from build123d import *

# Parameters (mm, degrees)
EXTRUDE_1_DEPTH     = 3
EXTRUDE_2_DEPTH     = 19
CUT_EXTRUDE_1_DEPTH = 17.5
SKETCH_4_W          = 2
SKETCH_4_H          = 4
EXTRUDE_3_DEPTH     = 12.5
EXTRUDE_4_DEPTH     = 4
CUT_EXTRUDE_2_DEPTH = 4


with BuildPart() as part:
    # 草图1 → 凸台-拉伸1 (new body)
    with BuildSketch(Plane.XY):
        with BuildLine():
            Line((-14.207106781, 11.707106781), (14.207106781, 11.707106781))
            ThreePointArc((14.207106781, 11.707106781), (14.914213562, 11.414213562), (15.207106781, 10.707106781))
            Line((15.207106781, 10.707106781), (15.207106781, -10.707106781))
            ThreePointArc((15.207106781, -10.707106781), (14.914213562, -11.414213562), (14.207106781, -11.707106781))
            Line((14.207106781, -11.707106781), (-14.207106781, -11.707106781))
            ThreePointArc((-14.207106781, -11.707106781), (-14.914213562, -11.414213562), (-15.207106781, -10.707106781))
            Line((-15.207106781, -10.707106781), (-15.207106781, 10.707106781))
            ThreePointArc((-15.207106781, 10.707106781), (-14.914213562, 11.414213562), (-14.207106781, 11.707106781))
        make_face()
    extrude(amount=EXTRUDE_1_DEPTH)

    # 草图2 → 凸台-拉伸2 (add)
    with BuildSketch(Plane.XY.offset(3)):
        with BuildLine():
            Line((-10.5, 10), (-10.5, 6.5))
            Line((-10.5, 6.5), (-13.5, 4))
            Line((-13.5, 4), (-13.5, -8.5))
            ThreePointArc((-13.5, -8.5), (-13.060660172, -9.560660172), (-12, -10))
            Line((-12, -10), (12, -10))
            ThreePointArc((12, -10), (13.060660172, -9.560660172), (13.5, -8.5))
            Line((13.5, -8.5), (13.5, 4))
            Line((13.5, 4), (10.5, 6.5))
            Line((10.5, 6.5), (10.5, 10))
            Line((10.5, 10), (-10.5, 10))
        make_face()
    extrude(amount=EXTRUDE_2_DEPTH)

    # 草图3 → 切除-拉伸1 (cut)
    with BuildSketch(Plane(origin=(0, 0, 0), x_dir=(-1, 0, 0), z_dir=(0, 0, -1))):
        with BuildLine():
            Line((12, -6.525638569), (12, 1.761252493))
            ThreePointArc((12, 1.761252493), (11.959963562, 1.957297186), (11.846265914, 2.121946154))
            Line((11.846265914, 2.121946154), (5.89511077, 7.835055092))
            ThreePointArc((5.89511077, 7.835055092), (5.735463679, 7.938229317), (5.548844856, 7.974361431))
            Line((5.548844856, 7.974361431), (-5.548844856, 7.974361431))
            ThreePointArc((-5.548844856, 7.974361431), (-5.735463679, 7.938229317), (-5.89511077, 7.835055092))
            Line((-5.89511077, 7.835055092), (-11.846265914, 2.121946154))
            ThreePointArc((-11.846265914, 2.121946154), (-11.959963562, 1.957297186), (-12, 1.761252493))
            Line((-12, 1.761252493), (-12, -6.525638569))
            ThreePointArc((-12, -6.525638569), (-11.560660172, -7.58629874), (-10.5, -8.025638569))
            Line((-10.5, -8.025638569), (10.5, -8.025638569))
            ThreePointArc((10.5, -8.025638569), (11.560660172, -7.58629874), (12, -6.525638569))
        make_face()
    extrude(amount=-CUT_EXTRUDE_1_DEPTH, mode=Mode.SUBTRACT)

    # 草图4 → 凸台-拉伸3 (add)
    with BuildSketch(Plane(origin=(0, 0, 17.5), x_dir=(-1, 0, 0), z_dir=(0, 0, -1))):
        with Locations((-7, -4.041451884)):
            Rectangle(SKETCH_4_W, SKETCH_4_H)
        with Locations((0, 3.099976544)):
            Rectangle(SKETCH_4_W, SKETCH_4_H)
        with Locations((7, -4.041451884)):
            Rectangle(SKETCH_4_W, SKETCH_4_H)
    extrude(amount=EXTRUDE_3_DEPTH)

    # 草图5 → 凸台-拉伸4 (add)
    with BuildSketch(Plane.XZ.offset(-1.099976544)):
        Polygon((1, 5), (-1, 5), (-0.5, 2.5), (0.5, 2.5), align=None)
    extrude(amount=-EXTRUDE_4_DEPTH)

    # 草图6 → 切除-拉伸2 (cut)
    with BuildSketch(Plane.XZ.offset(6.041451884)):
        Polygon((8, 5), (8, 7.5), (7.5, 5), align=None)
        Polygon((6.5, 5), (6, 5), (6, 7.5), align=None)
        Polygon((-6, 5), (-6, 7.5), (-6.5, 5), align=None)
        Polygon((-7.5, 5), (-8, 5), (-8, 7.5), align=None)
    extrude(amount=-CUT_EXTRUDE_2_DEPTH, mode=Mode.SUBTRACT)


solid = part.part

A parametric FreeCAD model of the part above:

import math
import FreeCAD as App
import Part
import Sketcher
Q = App.Units.Quantity

doc = App.newDocument("Part")
params = doc.addObject("Spreadsheet::Sheet", "Params")
for row, (alias, value) in enumerate([
    ("sketch1_radius", "1 mm"),
    ("pad1_length", "3 mm"),
    ("sketch2_radius", "1.5 mm"),
    ("sketch2_width", "24 mm"),
    ("sketch2_width2", "21 mm"),
    ("sketch2_height", "3.5 mm"),
    ("sketch2_height2", "12.5 mm"),
    ("pad2_length", "19 mm"),
    ("sketch3_radius", "0.5 mm"),
    ("sketch3_radius2", "1.5 mm"),
    ("sketch3_width", "21 mm"),
    ("pocket1_length", "17.5 mm"),
    ("sketch4_width", "2 mm"),
    ("sketch4_height", "4 mm"),
    ("pad3_length", "12.5 mm"),
    ("sketch5_width", "2 mm"),
    ("sketch5_width2", "1 mm"),
    ("pad4_length", "4 mm"),
    ("sketch6_width", "0.5 mm"),
    ("sketch6_height", "2.5 mm"),
    ("pocket2_length", "4 mm"),
], start=1):
    params.set(f"A{row}", alias)
    params.set(f"B{row}", "=" + value)
    params.setAlias(f"B{row}", alias)

body = doc.addObject("PartDesign::Body", "Body")

# Sketch on XY plane
sketch1 = doc.addObject("Sketcher::SketchObject", "Sketch")
body.addObject(sketch1)
sketch1.AttachmentSupport = (doc.XY_Plane, [""])
sketch1.MapMode = "FlatFace"
sketch1.addGeometry(Part.LineSegment(App.Vector(14.2, 11.7, 0), App.Vector(-14.2, 11.7, 0)), False)
sketch1.addGeometry(Part.ArcOfCircle(Part.Circle(App.Vector(-14.2, 10.7, 0), App.Vector(0, 0, 1), 1), math.radians(90), math.radians(180)), False)
sketch1.addGeometry(Part.LineSegment(App.Vector(-15.2, 10.7, 0), App.Vector(-15.2, -10.7, 0)), False)
sketch1.addGeometry(Part.ArcOfCircle(Part.Circle(App.Vector(-14.2, -10.7, 0), App.Vector(0, 0, 1), 1), math.radians(-180), math.radians(-90)), False)
sketch1.addGeometry(Part.LineSegment(App.Vector(-14.2, -11.7, 0), App.Vector(14.2, -11.7, 0)), False)
sketch1.addGeometry(Part.ArcOfCircle(Part.Circle(App.Vector(14.2, -10.7, 0), App.Vector(0, 0, 1), 1), math.radians(-90), math.radians(0)), False)
sketch1.addGeometry(Part.LineSegment(App.Vector(15.2, -10.7, 0), App.Vector(15.2, 10.7, 0)), False)
sketch1.addGeometry(Part.ArcOfCircle(Part.Circle(App.Vector(14.2, 10.7, 0), App.Vector(0, 0, 1), 1), math.radians(0), math.radians(90)), False)
sketch1.addConstraint(Sketcher.Constraint("Tangent", 0, 2, 1, 1))
sketch1.addConstraint(Sketcher.Constraint("Tangent", 1, 2, 2, 1))
sketch1.addConstraint(Sketcher.Constraint("Tangent", 2, 2, 3, 1))
sketch1.addConstraint(Sketcher.Constraint("Tangent", 3, 2, 4, 1))
sketch1.addConstraint(Sketcher.Constraint("Tangent", 4, 2, 5, 1))
sketch1.addConstraint(Sketcher.Constraint("Tangent", 5, 2, 6, 1))
sketch1.addConstraint(Sketcher.Constraint("Tangent", 6, 2, 7, 1))
sketch1.addConstraint(Sketcher.Constraint("Tangent", 7, 2, 0, 1))
sketch1.addConstraint(Sketcher.Constraint("Horizontal", 0))
sketch1.addConstraint(Sketcher.Constraint("Vertical", 2))
sketch1.addConstraint(Sketcher.Constraint("Horizontal", 4))
sketch1.addConstraint(Sketcher.Constraint("Vertical", 6))
sketch1.addConstraint(Sketcher.Constraint("Equal", 1, 3))
sketch1.addConstraint(Sketcher.Constraint("Equal", 3, 5))
sketch1.addConstraint(Sketcher.Constraint("Equal", 5, 7))
sketch1.addConstraint(Sketcher.Constraint("Symmetric", 1, 3, 5, 3, -1, 1))
sketch1.addConstraint(Sketcher.Constraint("Radius", 1, Q("1 mm")))
sketch1.addConstraint(Sketcher.Constraint("DistanceX", 0, 2, 0, 1, Q("28.414214 mm")))
sketch1.addConstraint(Sketcher.Constraint("DistanceY", 2, 2, 2, 1, Q("21.414214 mm")))
sketch1.setExpression("Constraints[16]", "Params.sketch1_radius")
pad1 = doc.addObject("PartDesign::Pad", "Pad")
body.addObject(pad1)
pad1.Profile = sketch1
pad1.setExpression("Length", "Params.pad1_length")

# Sketch on XY plane
sketch2 = doc.addObject("Sketcher::SketchObject", "Sketch001")
body.addObject(sketch2)
sketch2.AttachmentSupport = (doc.XY_Plane, [""])
sketch2.MapMode = "FlatFace"
sketch2.AttachmentOffset = App.Placement(App.Vector(0, 0, 3), App.Rotation())
sketch2.addGeometry(Part.LineSegment(App.Vector(-10.5, 10, 0), App.Vector(-10.5, 6.5, 0)), False)
sketch2.addGeometry(Part.LineSegment(App.Vector(-10.5, 6.5, 0), App.Vector(-13.5, 4, 0)), False)
sketch2.addGeometry(Part.LineSegment(App.Vector(-13.5, 4, 0), App.Vector(-13.5, -8.5, 0)), False)
sketch2.addGeometry(Part.ArcOfCircle(Part.Circle(App.Vector(-12, -8.5, 0), App.Vector(0, 0, 1), 1.5), math.radians(180), math.radians(270)), False)
sketch2.addGeometry(Part.LineSegment(App.Vector(-12, -10, 0), App.Vector(12, -10, 0)), False)
sketch2.addGeometry(Part.ArcOfCircle(Part.Circle(App.Vector(12, -8.5, 0), App.Vector(0, 0, 1), 1.5), math.radians(-90), math.radians(0)), False)
sketch2.addGeometry(Part.LineSegment(App.Vector(13.5, -8.5, 0), App.Vector(13.5, 4, 0)), False)
sketch2.addGeometry(Part.LineSegment(App.Vector(13.5, 4, 0), App.Vector(10.5, 6.5, 0)), False)
sketch2.addGeometry(Part.LineSegment(App.Vector(10.5, 6.5, 0), App.Vector(10.5, 10, 0)), False)
sketch2.addGeometry(Part.LineSegment(App.Vector(10.5, 10, 0), App.Vector(-10.5, 10, 0)), False)
sketch2.addConstraint(Sketcher.Constraint("Coincident", 0, 2, 1, 1))
sketch2.addConstraint(Sketcher.Constraint("Coincident", 1, 2, 2, 1))
sketch2.addConstraint(Sketcher.Constraint("Tangent", 2, 2, 3, 1))
sketch2.addConstraint(Sketcher.Constraint("Tangent", 3, 2, 4, 1))
sketch2.addConstraint(Sketcher.Constraint("Tangent", 4, 2, 5, 1))
sketch2.addConstraint(Sketcher.Constraint("Tangent", 5, 2, 6, 1))
sketch2.addConstraint(Sketcher.Constraint("Coincident", 6, 2, 7, 1))
sketch2.addConstraint(Sketcher.Constraint("Coincident", 7, 2, 8, 1))
sketch2.addConstraint(Sketcher.Constraint("Coincident", 8, 2, 9, 1))
sketch2.addConstraint(Sketcher.Constraint("Coincident", 9, 2, 0, 1))
sketch2.addConstraint(Sketcher.Constraint("Vertical", 0))
sketch2.addConstraint(Sketcher.Constraint("Vertical", 2))
sketch2.addConstraint(Sketcher.Constraint("Horizontal", 4))
sketch2.addConstraint(Sketcher.Constraint("Vertical", 6))
sketch2.addConstraint(Sketcher.Constraint("Vertical", 8))
sketch2.addConstraint(Sketcher.Constraint("Horizontal", 9))
sketch2.addConstraint(Sketcher.Constraint("Equal", 3, 5))
sketch2.addConstraint(Sketcher.Constraint("Symmetric", 1, 2, 6, 2, -2))
sketch2.addConstraint(Sketcher.Constraint("Symmetric", 0, 2, 7, 2, -2))
sketch2.addConstraint(Sketcher.Constraint("Radius", 3, Q("1.5 mm")))
sketch2.addConstraint(Sketcher.Constraint("DistanceX", 4, 1, 4, 2, Q("24 mm")))
sketch2.addConstraint(Sketcher.Constraint("DistanceX", 9, 2, 9, 1, Q("21 mm")))
sketch2.addConstraint(Sketcher.Constraint("DistanceY", 0, 2, 0, 1, Q("3.5 mm")))
sketch2.addConstraint(Sketcher.Constraint("DistanceY", 2, 2, 2, 1, Q("12.5 mm")))
sketch2.addConstraint(Sketcher.Constraint("DistanceY", -1, 1, 1, 2, Q("4 mm")))
sketch2.addConstraint(Sketcher.Constraint("DistanceY", -1, 1, 8, 2, Q("10 mm")))
sketch2.setExpression("Constraints[19]", "Params.sketch2_radius")
sketch2.setExpression("Constraints[20]", "Params.sketch2_width")
sketch2.setExpression("Constraints[21]", "Params.sketch2_width2")
sketch2.setExpression("Constraints[22]", "Params.sketch2_height")
sketch2.setExpression("Constraints[23]", "Params.sketch2_height2")
pad2 = doc.addObject("PartDesign::Pad", "Pad001")
body.addObject(pad2)
pad2.Profile = sketch2
pad2.setExpression("Length", "Params.pad2_length")

# Sketch on XY plane
sketch3 = doc.addObject("Sketcher::SketchObject", "Sketch002")
body.addObject(sketch3)
sketch3.AttachmentSupport = (doc.XY_Plane, [""])
sketch3.MapMode = "FlatFace"
sketch3.addGeometry(Part.LineSegment(App.Vector(-12, -6.53, 0), App.Vector(-12, 1.76, 0)), False)
sketch3.addGeometry(Part.ArcOfCircle(Part.Circle(App.Vector(-11.5, 1.76, 0), App.Vector(0, 0, 1), 0.5), math.radians(134), math.radians(180)), False)
sketch3.addGeometry(Part.LineSegment(App.Vector(-11.85, 2.12, 0), App.Vector(-5.9, 7.84, 0)), False)
sketch3.addGeometry(Part.ArcOfCircle(Part.Circle(App.Vector(-5.55, 7.47, 0), App.Vector(0, 0, 1), 0.5), math.radians(90), math.radians(134)), False)
sketch3.addGeometry(Part.LineSegment(App.Vector(-5.55, 7.97, 0), App.Vector(5.55, 7.97, 0)), False)
sketch3.addGeometry(Part.ArcOfCircle(Part.Circle(App.Vector(5.55, 7.47, 0), App.Vector(0, 0, 1), 0.5), math.radians(46), math.radians(90)), False)
sketch3.addGeometry(Part.LineSegment(App.Vector(5.9, 7.84, 0), App.Vector(11.85, 2.12, 0)), False)
sketch3.addGeometry(Part.ArcOfCircle(Part.Circle(App.Vector(11.5, 1.76, 0), App.Vector(0, 0, 1), 0.5), math.radians(0), math.radians(46)), False)
sketch3.addGeometry(Part.LineSegment(App.Vector(12, 1.76, 0), App.Vector(12, -6.53, 0)), False)
sketch3.addGeometry(Part.ArcOfCircle(Part.Circle(App.Vector(10.5, -6.53, 0), App.Vector(0, 0, 1), 1.5), math.radians(-90), math.radians(0)), False)
sketch3.addGeometry(Part.LineSegment(App.Vector(10.5, -8.03, 0), App.Vector(-10.5, -8.03, 0)), False)
sketch3.addGeometry(Part.ArcOfCircle(Part.Circle(App.Vector(-10.5, -6.53, 0), App.Vector(0, 0, 1), 1.5), math.radians(-180), math.radians(-90)), False)
sketch3.addConstraint(Sketcher.Constraint("Tangent", 0, 2, 1, 2))
sketch3.addConstraint(Sketcher.Constraint("Tangent", 1, 1, 2, 1))
sketch3.addConstraint(Sketcher.Constraint("Tangent", 2, 2, 3, 2))
sketch3.addConstraint(Sketcher.Constraint("Tangent", 3, 1, 4, 1))
sketch3.addConstraint(Sketcher.Constraint("Tangent", 4, 2, 5, 2))
sketch3.addConstraint(Sketcher.Constraint("Tangent", 5, 1, 6, 1))
sketch3.addConstraint(Sketcher.Constraint("Tangent", 6, 2, 7, 2))
sketch3.addConstraint(Sketcher.Constraint("Tangent", 7, 1, 8, 1))
sketch3.addConstraint(Sketcher.Constraint("Tangent", 8, 2, 9, 2))
sketch3.addConstraint(Sketcher.Constraint("Tangent", 9, 1, 10, 1))
sketch3.addConstraint(Sketcher.Constraint("Tangent", 10, 2, 11, 2))
sketch3.addConstraint(Sketcher.Constraint("Tangent", 11, 1, 0, 1))
sketch3.addConstraint(Sketcher.Constraint("Vertical", 0))
sketch3.addConstraint(Sketcher.Constraint("Horizontal", 4))
sketch3.addConstraint(Sketcher.Constraint("Vertical", 8))
sketch3.addConstraint(Sketcher.Constraint("Horizontal", 10))
sketch3.addConstraint(Sketcher.Constraint("Equal", 1, 3))
sketch3.addConstraint(Sketcher.Constraint("Equal", 3, 5))
sketch3.addConstraint(Sketcher.Constraint("Equal", 5, 7))
sketch3.addConstraint(Sketcher.Constraint("Equal", 9, 11))
sketch3.addConstraint(Sketcher.Constraint("Symmetric", 1, 3, 7, 3, -2))
sketch3.addConstraint(Sketcher.Constraint("Horizontal", 2, 2, 5, 1))
sketch3.addConstraint(Sketcher.Constraint("Radius", 1, Q("0.5 mm")))
sketch3.addConstraint(Sketcher.Constraint("Radius", 9, Q("1.5 mm")))
sketch3.addConstraint(Sketcher.Constraint("DistanceX", 10, 2, 10, 1, Q("21 mm")))
sketch3.addConstraint(Sketcher.Constraint("DistanceY", 9, 3, 5, 3, Q("14 mm")))
sketch3.addConstraint(Sketcher.Constraint("DistanceX", 4, 1, 4, 2, Q("11.09769 mm")))
sketch3.addConstraint(Sketcher.Constraint("DistanceY", 0, 1, 0, 2, Q("8.286891 mm")))
sketch3.addConstraint(Sketcher.Constraint("DistanceY", -1, 1, 3, 3, Q("7.474361 mm")))
sketch3.setExpression("Constraints[22]", "Params.sketch3_radius")
sketch3.setExpression("Constraints[23]", "Params.sketch3_radius2")
sketch3.setExpression("Constraints[24]", "Params.sketch3_width")
pocket1 = doc.addObject("PartDesign::Pocket", "Pocket")
body.addObject(pocket1)
pocket1.Profile = sketch3
pocket1.setExpression("Length", "Params.pocket1_length")
pocket1.Reversed = True

# Sketch on XY plane
sketch4 = doc.addObject("Sketcher::SketchObject", "Sketch003")
body.addObject(sketch4)
sketch4.AttachmentSupport = (doc.XY_Plane, [""])
sketch4.MapMode = "FlatFace"
sketch4.AttachmentOffset = App.Placement(App.Vector(0, 0, 17.5), App.Rotation())
sketch4.addGeometry(Part.LineSegment(App.Vector(8, -2, 0), App.Vector(8, -6, 0)), False)
sketch4.addGeometry(Part.LineSegment(App.Vector(8, -6, 0), App.Vector(6, -6, 0)), False)
sketch4.addGeometry(Part.LineSegment(App.Vector(6, -6, 0), App.Vector(6, -2, 0)), False)
sketch4.addGeometry(Part.LineSegment(App.Vector(6, -2, 0), App.Vector(8, -2, 0)), False)
sketch4.addGeometry(Part.LineSegment(App.Vector(1, 5.1, 0), App.Vector(1, 1.1, 0)), False)
sketch4.addGeometry(Part.LineSegment(App.Vector(1, 1.1, 0), App.Vector(-1, 1.1, 0)), False)
sketch4.addGeometry(Part.LineSegment(App.Vector(-1, 1.1, 0), App.Vector(-1, 5.1, 0)), False)
sketch4.addGeometry(Part.LineSegment(App.Vector(-1, 5.1, 0), App.Vector(1, 5.1, 0)), False)
sketch4.addGeometry(Part.LineSegment(App.Vector(-6, -2, 0), App.Vector(-6, -6, 0)), False)
sketch4.addGeometry(Part.LineSegment(App.Vector(-6, -6, 0), App.Vector(-8, -6, 0)), False)
sketch4.addGeometry(Part.LineSegment(App.Vector(-8, -6, 0), App.Vector(-8, -2, 0)), False)
sketch4.addGeometry(Part.LineSegment(App.Vector(-8, -2, 0), App.Vector(-6, -2, 0)), False)
sketch4.addConstraint(Sketcher.Constraint("Coincident", 0, 2, 1, 1))
sketch4.addConstraint(Sketcher.Constraint("Coincident", 1, 2, 2, 1))
sketch4.addConstraint(Sketcher.Constraint("Coincident", 2, 2, 3, 1))
sketch4.addConstraint(Sketcher.Constraint("Coincident", 3, 2, 0, 1))
sketch4.addConstraint(Sketcher.Constraint("Coincident", 4, 2, 5, 1))
sketch4.addConstraint(Sketcher.Constraint("Coincident", 5, 2, 6, 1))
sketch4.addConstraint(Sketcher.Constraint("Coincident", 6, 2, 7, 1))
sketch4.addConstraint(Sketcher.Constraint("Coincident", 7, 2, 4, 1))
sketch4.addConstraint(Sketcher.Constraint("Coincident", 8, 2, 9, 1))
sketch4.addConstraint(Sketcher.Constraint("Coincident", 9, 2, 10, 1))
sketch4.addConstraint(Sketcher.Constraint("Coincident", 10, 2, 11, 1))
sketch4.addConstraint(Sketcher.Constraint("Coincident", 11, 2, 8, 1))
sketch4.addConstraint(Sketcher.Constraint("Vertical", 0))
sketch4.addConstraint(Sketcher.Constraint("Horizontal", 1))
sketch4.addConstraint(Sketcher.Constraint("Vertical", 2))
sketch4.addConstraint(Sketcher.Constraint("Horizontal", 3))
sketch4.addConstraint(Sketcher.Constraint("Vertical", 4))
sketch4.addConstraint(Sketcher.Constraint("Horizontal", 5))
sketch4.addConstraint(Sketcher.Constraint("Vertical", 6))
sketch4.addConstraint(Sketcher.Constraint("Horizontal", 7))
sketch4.addConstraint(Sketcher.Constraint("Vertical", 8))
sketch4.addConstraint(Sketcher.Constraint("Horizontal", 9))
sketch4.addConstraint(Sketcher.Constraint("Vertical", 10))
sketch4.addConstraint(Sketcher.Constraint("Horizontal", 11))
sketch4.addConstraint(Sketcher.Constraint("Symmetric", 1, 2, 8, 2, -2))
sketch4.addConstraint(Sketcher.Constraint("Symmetric", 3, 2, 10, 2, -2))
sketch4.addConstraint(Sketcher.Constraint("Equal", 3, 5))
sketch4.addConstraint(Sketcher.Constraint("Equal", 2, 4))
sketch4.addConstraint(Sketcher.Constraint("DistanceX", 1, 2, 1, 1, Q("2 mm")))
sketch4.addConstraint(Sketcher.Constraint("DistanceY", 0, 2, 0, 1, Q("4 mm")))
sketch4.addConstraint(Sketcher.Constraint("DistanceX", -1, 1, 0, 2, Q("8 mm")))
sketch4.addConstraint(Sketcher.Constraint("DistanceX", -1, 1, 4, 2, Q("1 mm")))
sketch4.addConstraint(Sketcher.Constraint("DistanceY", 0, 2, -1, 1, Q("6.041452 mm")))
sketch4.addConstraint(Sketcher.Constraint("DistanceY", 2, 2, 4, 2, Q("3.141428 mm")))
sketch4.setExpression("Constraints[28]", "Params.sketch4_width")
sketch4.setExpression("Constraints[29]", "Params.sketch4_height")
pad3 = doc.addObject("PartDesign::Pad", "Pad002")
body.addObject(pad3)
pad3.Profile = sketch4
pad3.setExpression("Length", "Params.pad3_length")
pad3.Reversed = True

# Sketch on XZ plane
sketch5 = doc.addObject("Sketcher::SketchObject", "Sketch004")
body.addObject(sketch5)
sketch5.AttachmentSupport = (doc.XZ_Plane, [""])
sketch5.MapMode = "FlatFace"
sketch5.AttachmentOffset = App.Placement(App.Vector(0, 0, -1.099977), App.Rotation())
sketch5.addGeometry(Part.LineSegment(App.Vector(1, 5, 0), App.Vector(-1, 5, 0)), False)
sketch5.addGeometry(Part.LineSegment(App.Vector(-1, 5, 0), App.Vector(-0.5, 2.5, 0)), False)
sketch5.addGeometry(Part.LineSegment(App.Vector(-0.5, 2.5, 0), App.Vector(0.5, 2.5, 0)), False)
sketch5.addGeometry(Part.LineSegment(App.Vector(0.5, 2.5, 0), App.Vector(1, 5, 0)), False)
sketch5.addConstraint(Sketcher.Constraint("Coincident", 0, 2, 1, 1))
sketch5.addConstraint(Sketcher.Constraint("Coincident", 1, 2, 2, 1))
sketch5.addConstraint(Sketcher.Constraint("Coincident", 2, 2, 3, 1))
sketch5.addConstraint(Sketcher.Constraint("Coincident", 3, 2, 0, 1))
sketch5.addConstraint(Sketcher.Constraint("Horizontal", 0))
sketch5.addConstraint(Sketcher.Constraint("Horizontal", 2))
sketch5.addConstraint(Sketcher.Constraint("Equal", 1, 3))
sketch5.addConstraint(Sketcher.Constraint("DistanceX", 0, 2, 0, 1, Q("2 mm")))
sketch5.addConstraint(Sketcher.Constraint("DistanceX", 2, 1, 2, 2, Q("1 mm")))
sketch5.addConstraint(Sketcher.Constraint("DistanceX", 0, 2, -1, 1, Q("1 mm")))
sketch5.addConstraint(Sketcher.Constraint("DistanceY", -1, 1, 0, 2, Q("5 mm")))
sketch5.addConstraint(Sketcher.Constraint("DistanceY", -1, 1, 1, 2, Q("2.5 mm")))
sketch5.setExpression("Constraints[7]", "Params.sketch5_width")
sketch5.setExpression("Constraints[8]", "Params.sketch5_width2")
pad4 = doc.addObject("PartDesign::Pad", "Pad003")
body.addObject(pad4)
pad4.Profile = sketch5
pad4.setExpression("Length", "Params.pad4_length")
pad4.Reversed = True

# Sketch on XZ plane
sketch6 = doc.addObject("Sketcher::SketchObject", "Sketch005")
body.addObject(sketch6)
sketch6.AttachmentSupport = (doc.XZ_Plane, [""])
sketch6.MapMode = "FlatFace"
sketch6.AttachmentOffset = App.Placement(App.Vector(0, 0, 6.041452), App.Rotation())
sketch6.addGeometry(Part.LineSegment(App.Vector(8, 5, 0), App.Vector(8, 7.5, 0)), False)
sketch6.addGeometry(Part.LineSegment(App.Vector(8, 7.5, 0), App.Vector(7.5, 5, 0)), False)
sketch6.addGeometry(Part.LineSegment(App.Vector(7.5, 5, 0), App.Vector(8, 5, 0)), False)
sketch6.addGeometry(Part.LineSegment(App.Vector(6, 5, 0), App.Vector(6.5, 5, 0)), False)
sketch6.addGeometry(Part.LineSegment(App.Vector(6.5, 5, 0), App.Vector(6, 7.5, 0)), False)
sketch6.addGeometry(Part.LineSegment(App.Vector(6, 7.5, 0), App.Vector(6, 5, 0)), False)
sketch6.addGeometry(Part.LineSegment(App.Vector(-6, 5, 0), App.Vector(-6, 7.5, 0)), False)
sketch6.addGeometry(Part.LineSegment(App.Vector(-6, 7.5, 0), App.Vector(-6.5, 5, 0)), False)
sketch6.addGeometry(Part.LineSegment(App.Vector(-6.5, 5, 0), App.Vector(-6, 5, 0)), False)
sketch6.addGeometry(Part.LineSegment(App.Vector(-8, 5, 0), App.Vector(-7.5, 5, 0)), False)
sketch6.addGeometry(Part.LineSegment(App.Vector(-7.5, 5, 0), App.Vector(-8, 7.5, 0)), False)
sketch6.addGeometry(Part.LineSegment(App.Vector(-8, 7.5, 0), App.Vector(-8, 5, 0)), False)
sketch6.addConstraint(Sketcher.Constraint("Coincident", 0, 2, 1, 1))
sketch6.addConstraint(Sketcher.Constraint("Coincident", 1, 2, 2, 1))
sketch6.addConstraint(Sketcher.Constraint("Coincident", 2, 2, 0, 1))
sketch6.addConstraint(Sketcher.Constraint("Coincident", 3, 2, 4, 1))
sketch6.addConstraint(Sketcher.Constraint("Coincident", 4, 2, 5, 1))
sketch6.addConstraint(Sketcher.Constraint("Coincident", 5, 2, 3, 1))
sketch6.addConstraint(Sketcher.Constraint("Coincident", 6, 2, 7, 1))
sketch6.addConstraint(Sketcher.Constraint("Coincident", 7, 2, 8, 1))
sketch6.addConstraint(Sketcher.Constraint("Coincident", 8, 2, 6, 1))
sketch6.addConstraint(Sketcher.Constraint("Coincident", 9, 2, 10, 1))
sketch6.addConstraint(Sketcher.Constraint("Coincident", 10, 2, 11, 1))
sketch6.addConstraint(Sketcher.Constraint("Coincident", 11, 2, 9, 1))
sketch6.addConstraint(Sketcher.Constraint("Vertical", 0))
sketch6.addConstraint(Sketcher.Constraint("Horizontal", 2))
sketch6.addConstraint(Sketcher.Constraint("Horizontal", 3))
sketch6.addConstraint(Sketcher.Constraint("Vertical", 5))
sketch6.addConstraint(Sketcher.Constraint("Vertical", 6))
sketch6.addConstraint(Sketcher.Constraint("Horizontal", 8))
sketch6.addConstraint(Sketcher.Constraint("Horizontal", 9))
sketch6.addConstraint(Sketcher.Constraint("Vertical", 11))
sketch6.addConstraint(Sketcher.Constraint("Symmetric", 4, 2, 6, 2, -2))
sketch6.addConstraint(Sketcher.Constraint("Symmetric", 3, 2, 7, 2, -2))
sketch6.addConstraint(Sketcher.Constraint("Symmetric", 1, 2, 9, 2, -2))
sketch6.addConstraint(Sketcher.Constraint("Symmetric", 0, 2, 10, 2, -2))
sketch6.addConstraint(Sketcher.Constraint("Parallel", 1, 7))
sketch6.addConstraint(Sketcher.Constraint("Horizontal", 2, 2, 3, 2))
sketch6.addConstraint(Sketcher.Constraint("Horizontal", 0, 2, 4, 2))
sketch6.addConstraint(Sketcher.Constraint("DistanceX", 2, 1, 2, 2, Q("0.5 mm")))
sketch6.addConstraint(Sketcher.Constraint("DistanceY", 0, 1, 0, 2, Q("2.5 mm")))
sketch6.addConstraint(Sketcher.Constraint("DistanceX", -1, 1, 0, 2, Q("8 mm")))
sketch6.addConstraint(Sketcher.Constraint("DistanceY", -1, 1, 1, 2, Q("5 mm")))
sketch6.addConstraint(Sketcher.Constraint("DistanceX", -1, 1, 4, 2, Q("6 mm")))
sketch6.setExpression("Constraints[27]", "Params.sketch6_width")
sketch6.setExpression("Constraints[28]", "Params.sketch6_height")
pocket2 = doc.addObject("PartDesign::Pocket", "Pocket001")
body.addObject(pocket2)
pocket2.Profile = sketch6
pocket2.setExpression("Length", "Params.pocket2_length")

doc.recompute()
